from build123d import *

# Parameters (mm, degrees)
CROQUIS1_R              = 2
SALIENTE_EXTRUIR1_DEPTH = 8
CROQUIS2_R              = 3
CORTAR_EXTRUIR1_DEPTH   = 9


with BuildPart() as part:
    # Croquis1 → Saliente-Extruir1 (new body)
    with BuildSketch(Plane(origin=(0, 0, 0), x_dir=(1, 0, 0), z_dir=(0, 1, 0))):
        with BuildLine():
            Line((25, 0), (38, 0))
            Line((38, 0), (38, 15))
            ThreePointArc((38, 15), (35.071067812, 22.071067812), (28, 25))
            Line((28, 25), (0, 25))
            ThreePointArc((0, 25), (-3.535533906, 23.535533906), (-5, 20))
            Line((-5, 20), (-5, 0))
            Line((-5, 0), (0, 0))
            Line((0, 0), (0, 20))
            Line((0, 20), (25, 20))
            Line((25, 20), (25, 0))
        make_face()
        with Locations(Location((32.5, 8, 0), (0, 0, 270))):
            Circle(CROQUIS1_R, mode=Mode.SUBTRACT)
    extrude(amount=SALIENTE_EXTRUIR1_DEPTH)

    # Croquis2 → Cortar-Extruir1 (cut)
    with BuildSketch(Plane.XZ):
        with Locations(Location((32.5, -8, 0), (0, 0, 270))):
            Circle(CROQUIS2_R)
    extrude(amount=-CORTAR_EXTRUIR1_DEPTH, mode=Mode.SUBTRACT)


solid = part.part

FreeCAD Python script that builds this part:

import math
import FreeCAD as App
import Part
import Sketcher

V = App.Vector
Q = App.Units.Quantity

doc = App.newDocument("Part")
body = doc.addObject("PartDesign::Body", "Body")

sketch1 = body.newObject("Sketcher::SketchObject", "Sketch")
sketch1.AttachmentSupport = (doc.getObject("XZ_Plane"), [""])
sketch1.MapMode = "FlatFace"
sketch1.addGeometry([
    Part.LineSegment(V(25, 0, 0), V(38, 0, 0)),
    Part.LineSegment(V(38, 0, 0), V(38, -15, 0)),
    Part.ArcOfCircle(Part.Circle(V(28, -15, 0), V(0, 0, 1), 10), math.radians(-90), math.radians(0)),
    Part.LineSegment(V(28, -25, 0), V(0, -25, 0)),
    Part.ArcOfCircle(Part.Circle(V(0, -20, 0), V(0, 0, 1), 5), math.radians(180), math.radians(270)),
    Part.LineSegment(V(-5, -20, 0), V(-5, 0, 0)),
    Part.LineSegment(V(-5, 0, 0), V(0, 0, 0)),
    Part.LineSegment(V(0, 0, 0), V(0, -20, 0)),
    Part.LineSegment(V(0, -20, 0), V(25, -20, 0)),
    Part.LineSegment(V(25, -20, 0), V(25, 0, 0)),
    Part.Circle(V(32.5, -8, 0), V(0, 0, 1), 2),
], False)
sketch1.addConstraint([
    Sketcher.Constraint("Coincident", 0, 2, 1, 1),
    Sketcher.Constraint("Tangent", 1, 2, 2, 2),
    Sketcher.Constraint("Tangent", 2, 1, 3, 1),
    Sketcher.Constraint("Tangent", 3, 2, 4, 2),
    Sketcher.Constraint("Tangent", 4, 1, 5, 1),
    Sketcher.Constraint("Coincident", 5, 2, 6, 1),
    Sketcher.Constraint("Coincident", 6, 2, 7, 1),
    Sketcher.Constraint("Coincident", 7, 2, 8, 1),
    Sketcher.Constraint("Coincident", 8, 2, 9, 1),
    Sketcher.Constraint("Coincident", 9, 2, 0, 1),
    Sketcher.Constraint("Horizontal", 0),
    Sketcher.Constraint("Vertical", 1),
    Sketcher.Constraint("Horizontal", 3),
    Sketcher.Constraint("Vertical", 5),
    Sketcher.Constraint("Horizontal", 6),
    Sketcher.Constraint("Vertical", 7),
    Sketcher.Constraint("Horizontal", 8),
    Sketcher.Constraint("Vertical", 9),
    Sketcher.Constraint("Coincident", 6, 2, -1, 1),
    Sketcher.Constraint("Coincident", 7, 2, 4, 3),
    Sketcher.Constraint("PointOnObject", 0, 2, -1),
    Sketcher.Constraint("Diameter", 10, Q("4 mm")),
    Sketcher.Constraint("Radius", 2, Q("10 mm")),
    Sketcher.Constraint("Radius", 4, Q("5 mm")),
    Sketcher.Constraint("DistanceX", 0, 1, 0, 2, Q("13 mm")),
    Sketcher.Constraint("DistanceX", 3, 2, 3, 1, Q("28 mm")),
    Sketcher.Constraint("DistanceY", 1, 2, 1, 1, Q("15 mm")),
    Sketcher.Constraint("DistanceY", 10, 3, -1, 1, Q("8 mm")),
    Sketcher.Constraint("DistanceX", -1, 1, 10, 3, Q("32.5 mm")),
])
pad1 = body.newObject("PartDesign::Pad", "Pad")
pad1.Profile = sketch1
pad1.Length = 8
pad1.Reversed = True

sketch2 = body.newObject("Sketcher::SketchObject", "Sketch001")
sketch2.AttachmentSupport = (doc.getObject("XZ_Plane"), [""])
sketch2.MapMode = "FlatFace"
sketch2.addGeometry(Part.Circle(V(32.5, -8, 0), V(0, 0, 1), 3), False)
sketch2.addConstraint([
    Sketcher.Constraint("Diameter", 0, Q("6 mm")),
    Sketcher.Constraint("DistanceY", 0, 3, -1, 1, Q("8 mm")),
    Sketcher.Constraint("DistanceX", -1, 1, 0, 3, Q("32.5 mm")),
])
pocket1 = body.newObject("PartDesign::Pocket", "Pocket")
pocket1.Profile = sketch2
pocket1.Length = 9

doc.recompute()
